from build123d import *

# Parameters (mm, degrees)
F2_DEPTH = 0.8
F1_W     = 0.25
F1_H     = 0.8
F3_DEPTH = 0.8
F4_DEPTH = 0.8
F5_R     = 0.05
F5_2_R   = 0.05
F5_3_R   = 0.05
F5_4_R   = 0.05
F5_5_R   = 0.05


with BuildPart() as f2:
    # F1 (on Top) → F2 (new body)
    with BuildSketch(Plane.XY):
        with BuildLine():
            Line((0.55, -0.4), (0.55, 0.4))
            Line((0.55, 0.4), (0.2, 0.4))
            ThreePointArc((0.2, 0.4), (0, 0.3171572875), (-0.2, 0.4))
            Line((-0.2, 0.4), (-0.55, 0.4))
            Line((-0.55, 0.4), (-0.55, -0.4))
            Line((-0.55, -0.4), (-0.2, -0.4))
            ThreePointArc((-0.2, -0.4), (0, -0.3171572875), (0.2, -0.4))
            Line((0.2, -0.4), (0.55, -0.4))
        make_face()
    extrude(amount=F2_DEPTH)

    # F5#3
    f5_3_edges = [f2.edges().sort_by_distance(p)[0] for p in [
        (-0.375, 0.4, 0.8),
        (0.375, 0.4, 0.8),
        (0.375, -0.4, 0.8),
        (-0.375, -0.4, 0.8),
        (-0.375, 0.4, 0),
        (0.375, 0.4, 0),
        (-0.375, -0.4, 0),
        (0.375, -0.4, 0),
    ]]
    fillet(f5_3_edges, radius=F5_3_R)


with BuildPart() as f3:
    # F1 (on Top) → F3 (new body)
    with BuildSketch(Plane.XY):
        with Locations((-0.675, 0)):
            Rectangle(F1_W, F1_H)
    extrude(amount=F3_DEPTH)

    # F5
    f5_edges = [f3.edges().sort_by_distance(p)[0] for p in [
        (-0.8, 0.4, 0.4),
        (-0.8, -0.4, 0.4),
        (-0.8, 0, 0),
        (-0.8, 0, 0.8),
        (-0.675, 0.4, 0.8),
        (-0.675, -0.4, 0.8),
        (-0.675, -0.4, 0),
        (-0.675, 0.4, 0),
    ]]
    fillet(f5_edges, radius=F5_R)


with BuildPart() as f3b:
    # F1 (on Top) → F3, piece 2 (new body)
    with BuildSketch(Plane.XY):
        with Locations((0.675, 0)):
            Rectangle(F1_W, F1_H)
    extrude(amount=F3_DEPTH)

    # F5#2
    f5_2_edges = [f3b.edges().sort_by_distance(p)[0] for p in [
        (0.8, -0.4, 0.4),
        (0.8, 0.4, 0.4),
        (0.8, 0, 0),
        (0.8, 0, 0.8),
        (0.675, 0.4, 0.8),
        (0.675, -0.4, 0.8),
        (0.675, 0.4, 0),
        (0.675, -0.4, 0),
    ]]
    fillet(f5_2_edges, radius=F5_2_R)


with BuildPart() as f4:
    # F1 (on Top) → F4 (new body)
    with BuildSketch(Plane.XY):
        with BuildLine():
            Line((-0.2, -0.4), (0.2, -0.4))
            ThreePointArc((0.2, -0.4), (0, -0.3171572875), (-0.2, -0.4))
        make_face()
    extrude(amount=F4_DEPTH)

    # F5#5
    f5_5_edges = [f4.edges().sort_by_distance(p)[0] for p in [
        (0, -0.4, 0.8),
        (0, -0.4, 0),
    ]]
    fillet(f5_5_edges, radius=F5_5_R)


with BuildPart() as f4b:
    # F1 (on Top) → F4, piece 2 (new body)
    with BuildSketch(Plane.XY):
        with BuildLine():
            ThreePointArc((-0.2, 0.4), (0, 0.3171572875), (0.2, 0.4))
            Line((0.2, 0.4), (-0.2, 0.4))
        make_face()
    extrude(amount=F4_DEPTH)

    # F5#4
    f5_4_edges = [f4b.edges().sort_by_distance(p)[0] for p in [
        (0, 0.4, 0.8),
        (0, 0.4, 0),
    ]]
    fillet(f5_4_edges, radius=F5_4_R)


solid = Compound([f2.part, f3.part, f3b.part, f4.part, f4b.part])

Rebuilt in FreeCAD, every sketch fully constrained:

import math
import FreeCAD as App
import Part
import Sketcher
from FreeCAD import Vector
Q = App.Units.Quantity


def edges_at(feature, points):
    """Names of the edges that pass closest to the given points."""
    edges = feature.Shape.Edges
    near = lambda p: min(range(len(edges)), key=lambda i: edges[i].distToShape(Part.Vertex(*p))[0])
    return sorted({f"Edge{near(p) + 1}" for p in points})


def add_polygon(sketch, points):
    """Adds a closed chain of lines whose ends are joined by coincident constraints."""
    first, n = sketch.GeometryCount, len(points)
    for a, b in zip(points, points[1:] + points[:1]):
        sketch.addGeometry(Part.LineSegment(App.Vector(*a, 0), App.Vector(*b, 0)), False)
    for i in range(n):
        sketch.addConstraint(Sketcher.Constraint("Coincident", first + i, 2, first + (i + 1) % n, 1))

doc = App.newDocument("Part")
body = doc.addObject("PartDesign::Body", "Body")

# Sketch on XY plane
sketch1 = body.newObject("Sketcher::SketchObject", "Sketch")
sketch1.AttachmentSupport = (doc.getObject("XY_Plane"), [""])
sketch1.MapMode = "FlatFace"
sketch1.addGeometry([
    Part.LineSegment(Vector(0.55, -0.4, 0), Vector(0.55, 0.4, 0)),  # 0
    Part.LineSegment(Vector(0.55, 0.4, 0), Vector(0.2, 0.4, 0)),  # 1
    Part.ArcOfCircle(Part.Circle(Vector(0, 0.6, 0), Vector(0, 0, 1), 0.282843), math.radians(-135), math.radians(-45)),  # 2
    Part.LineSegment(Vector(-0.2, 0.4, 0), Vector(-0.55, 0.4, 0)),  # 3
    Part.LineSegment(Vector(-0.55, 0.4, 0), Vector(-0.55, -0.4, 0)),  # 4
    Part.LineSegment(Vector(-0.55, -0.4, 0), Vector(-0.2, -0.4, 0)),  # 5
    Part.ArcOfCircle(Part.Circle(Vector(0, -0.6, 0), Vector(0, 0, 1), 0.282843), math.radians(45), math.radians(135)),  # 6
    Part.LineSegment(Vector(0.2, -0.4, 0), Vector(0.55, -0.4, 0)),  # 7
], False)
sketch1.addConstraint([
    Sketcher.Constraint("Coincident", 0, 2, 1, 1),
    Sketcher.Constraint("Coincident", 1, 2, 2, 2),
    Sketcher.Constraint("Coincident", 2, 1, 3, 1),
    Sketcher.Constraint("Coincident", 3, 2, 4, 1),
    Sketcher.Constraint("Coincident", 4, 2, 5, 1),
    Sketcher.Constraint("Coincident", 5, 2, 6, 2),
    Sketcher.Constraint("Coincident", 6, 1, 7, 1),
    Sketcher.Constraint("Coincident", 7, 2, 0, 1),
    Sketcher.Constraint("Vertical", 0),
    Sketcher.Constraint("Horizontal", 1),
    Sketcher.Constraint("Horizontal", 3),
    Sketcher.Constraint("Vertical", 4),
    Sketcher.Constraint("Horizontal", 5),
    Sketcher.Constraint("Horizontal", 7),
    Sketcher.Constraint("Equal", 2, 6),
    Sketcher.Constraint("Symmetric", 2, 3, 6, 3, -1, 1),
    Sketcher.Constraint("Symmetric", 0, 2, 4, 2, -1, 1),
    Sketcher.Constraint("Symmetric", 1, 2, 2, 1, -2),
    Sketcher.Constraint("Horizontal", 5, 2, 6, 1),
    Sketcher.Constraint("DistanceY", 0, 1, 0, 2, Q("0.8 mm")),
    Sketcher.Constraint("DistanceY", 6, 3, 0, 2, Q("1 mm")),
    Sketcher.Constraint("DistanceX", 1, 2, 1, 1, Q("0.35 mm")),
    Sketcher.Constraint("DistanceX", -1, 1, 1, 2, Q("0.2 mm")),
])
pad1 = body.newObject("PartDesign::Pad", "Pad")
pad1.Profile = sketch1
pad1.Length = 0.8
doc.recompute()

fillet = body.newObject("PartDesign::Fillet", "Fillet")
fillet.Base = (pad1, edges_at(pad1, [
    (-0.375, 0.4, 0.8),
    (0.375, 0.4, 0.8),
    (0.375, -0.4, 0.8),
    (-0.375, -0.4, 0.8),
    (-0.375, 0.4, 0),
    (0.375, 0.4, 0),
    (-0.375, -0.4, 0),
    (0.375, -0.4, 0),
]))
fillet.Radius = 0.05
body2 = doc.addObject("PartDesign::Body", "Body001")

# Sketch on XY plane
sketch2 = body2.newObject("Sketcher::SketchObject", "Sketch001")
sketch2.AttachmentSupport = (doc.getObject("XY_Plane001"), [""])
sketch2.MapMode = "FlatFace"
add_polygon(sketch2, [(-0.8, 0.4), (-0.8, -0.4), (-0.55, -0.4), (-0.55, 0.4)])  # lines 0-3
sketch2.addConstraint([
    Sketcher.Constraint("Vertical", 0),
    Sketcher.Constraint("Horizontal", 1),
    Sketcher.Constraint("Vertical", 2),
    Sketcher.Constraint("Horizontal", 3),
    Sketcher.Constraint("DistanceY", 0, 2, 0, 1, Q("0.8 mm")),
    Sketcher.Constraint("DistanceX", 1, 1, 1, 2, Q("0.25 mm")),
    Sketcher.Constraint("DistanceX", 0, 2, -1, 1, Q("0.8 mm")),
    Sketcher.Constraint("DistanceY", 0, 2, -1, 1, Q("0.4 mm")),
])
pad2 = body2.newObject("PartDesign::Pad", "Pad001")
pad2.Profile = sketch2
pad2.Length = 0.8
doc.recompute()

fillet2 = body2.newObject("PartDesign::Fillet", "Fillet001")
fillet2.Base = (pad2, edges_at(pad2, [
    (-0.8, 0.4, 0.4),
    (-0.8, -0.4, 0.4),
    (-0.8, 0, 0),
    (-0.8, 0, 0.8),
    (-0.675, 0.4, 0.8),
    (-0.675, -0.4, 0.8),
    (-0.675, -0.4, 0),
    (-0.675, 0.4, 0),
]))
fillet2.Radius = 0.05
body3 = doc.addObject("PartDesign::Body", "Body002")

# Sketch on XY plane
sketch3 = body3.newObject("Sketcher::SketchObject", "Sketch002")
sketch3.AttachmentSupport = (doc.getObject("XY_Plane002"), [""])
sketch3.MapMode = "FlatFace"
add_polygon(sketch3, [(0.55, 0.4), (0.55, -0.4), (0.8, -0.4), (0.8, 0.4)])  # lines 0-3
sketch3.addConstraint([
    Sketcher.Constraint("Vertical", 0),
    Sketcher.Constraint("Horizontal", 1),
    Sketcher.Constraint("Vertical", 2),
    Sketcher.Constraint("Horizontal", 3),
    Sketcher.Constraint("DistanceY", 0, 2, 0, 1, Q("0.8 mm")),
    Sketcher.Constraint("DistanceX", 1, 1, 1, 2, Q("0.25 mm")),
    Sketcher.Constraint("DistanceY", 0, 2, -1, 1, Q("0.4 mm")),
    Sketcher.Constraint("DistanceX", -1, 1, 1, 2, Q("0.8 mm")),
])
pad3 = body3.newObject("PartDesign::Pad", "Pad002")
pad3.Profile = sketch3
pad3.Length = 0.8
doc.recompute()

fillet3 = body3.newObject("PartDesign::Fillet", "Fillet002")
fillet3.Base = (pad3, edges_at(pad3, [
    (0.8, -0.4, 0.4),
    (0.8, 0.4, 0.4),
    (0.8, 0, 0),
    (0.8, 0, 0.8),
    (0.675, 0.4, 0.8),
    (0.675, -0.4, 0.8),
    (0.675, 0.4, 0),
    (0.675, -0.4, 0),
]))
fillet3.Radius = 0.05
body4 = doc.addObject("PartDesign::Body", "Body003")

# Sketch on XY plane
sketch4 = body4.newObject("Sketcher::SketchObject", "Sketch003")
sketch4.AttachmentSupport = (doc.getObject("XY_Plane003"), [""])
sketch4.MapMode = "FlatFace"
sketch4.addGeometry([
    Part.LineSegment(Vector(-0.2, -0.4, 0), Vector(0.2, -0.4, 0)),
    Part.ArcOfCircle(Part.Circle(Vector(0, -0.6, 0), Vector(0, 0, 1), 0.282843), math.radians(45), math.radians(135)),
], False)
sketch4.addConstraint([
    Sketcher.Constraint("Coincident", 0, 1, 1, 2),
    Sketcher.Constraint("Coincident", 1, 1, 0, 2),
    Sketcher.Constraint("Horizontal", 0),
    Sketcher.Constraint("PointOnObject", 1, 3, -2),
    Sketcher.Constraint("DistanceX", 0, 1, 0, 2, Q("0.4 mm")),
    Sketcher.Constraint("DistanceY", 1, 3, -1, 1, Q("0.6 mm")),
    Sketcher.Constraint("DistanceY", 0, 1, -1, 1, Q("0.4 mm")),
])
pad4 = body4.newObject("PartDesign::Pad", "Pad003")
pad4.Profile = sketch4
pad4.Length = 0.8
doc.recompute()

fillet4 = body4.newObject("PartDesign::Fillet", "Fillet003")
fillet4.Base = (pad4, edges_at(pad4, [(0, -0.4, 0.8), (0, -0.4, 0)]))
fillet4.Radius = 0.05
body5 = doc.addObject("PartDesign::Body", "Body004")

# Sketch on XY plane
sketch5 = body5.newObject("Sketcher::SketchObject", "Sketch004")
sketch5.AttachmentSupport = (doc.getObject("XY_Plane004"), [""])
sketch5.MapMode = "FlatFace"
sketch5.addGeometry([
    Part.ArcOfCircle(Part.Circle(Vector(0, 0.6, 0), Vector(0, 0, 1), 0.282843), math.radians(-135), math.radians(-45)),
    Part.LineSegment(Vector(0.2, 0.4, 0), Vector(-0.2, 0.4, 0)),
], False)
sketch5.addConstraint([
    Sketcher.Constraint("Coincident", 0, 1, 1, 2),
    Sketcher.Constraint("Coincident", 1, 1, 0, 2),
    Sketcher.Constraint("Horizontal", 1),
    Sketcher.Constraint("PointOnObject", 0, 3, -2),
    Sketcher.Constraint("DistanceX", 1, 2, 1, 1, Q("0.4 mm")),
    Sketcher.Constraint("DistanceY", -1, 1, 0, 3, Q("0.6 mm")),
    Sketcher.Constraint("DistanceY", -1, 1, 0, 1, Q("0.4 mm")),
])
pad5 = body5.newObject("PartDesign::Pad", "Pad004")
pad5.Profile = sketch5
pad5.Length = 0.8
doc.recompute()

fillet5 = body5.newObject("PartDesign::Fillet", "Fillet004")
fillet5.Base = (pad5, edges_at(pad5, [(0, 0.4, 0.8), (0, 0.4, 0)]))
fillet5.Radius = 0.05

doc.recompute()
